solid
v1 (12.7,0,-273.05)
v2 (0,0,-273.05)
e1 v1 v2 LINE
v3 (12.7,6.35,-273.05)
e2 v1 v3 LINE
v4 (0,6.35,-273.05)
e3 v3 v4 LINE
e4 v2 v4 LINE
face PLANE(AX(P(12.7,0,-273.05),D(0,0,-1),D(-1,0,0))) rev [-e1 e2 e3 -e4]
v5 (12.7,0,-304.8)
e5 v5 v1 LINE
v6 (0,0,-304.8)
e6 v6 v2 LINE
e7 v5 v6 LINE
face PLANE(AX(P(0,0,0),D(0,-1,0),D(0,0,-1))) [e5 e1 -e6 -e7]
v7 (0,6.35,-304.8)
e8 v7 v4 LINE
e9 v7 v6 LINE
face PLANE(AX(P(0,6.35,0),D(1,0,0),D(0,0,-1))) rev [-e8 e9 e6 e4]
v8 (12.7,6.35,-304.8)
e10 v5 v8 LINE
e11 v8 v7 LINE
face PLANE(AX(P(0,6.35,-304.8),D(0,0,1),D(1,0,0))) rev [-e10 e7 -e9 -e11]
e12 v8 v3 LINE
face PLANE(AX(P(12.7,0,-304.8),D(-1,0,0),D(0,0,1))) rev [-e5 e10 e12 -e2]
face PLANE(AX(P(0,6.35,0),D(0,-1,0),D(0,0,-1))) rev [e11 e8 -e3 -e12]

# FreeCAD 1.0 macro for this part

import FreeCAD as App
import Part
import Sketcher
Q = App.Units.Quantity

doc = App.newDocument("Part")
body = doc.addObject("PartDesign::Body", "Body")

sketch1 = body.newObject("Sketcher::SketchObject", "Sketch")
sketch1.AttachmentSupport = (doc.getObject("XZ_Plane"), [""])
sketch1.MapMode = "FlatFace"
sketch1.addGeometry([
    Part.LineSegment(App.Vector(0, -305, 0), App.Vector(0, 0, 0)),
    Part.LineSegment(App.Vector(0, 0, 0), App.Vector(305, 0, 0)),
    Part.LineSegment(App.Vector(305, 0, 0), App.Vector(305, -305, 0)),
    Part.LineSegment(App.Vector(305, -305, 0), App.Vector(0, -305, 0)),
], False)
sketch1.addConstraint([
    Sketcher.Constraint("Coincident", 0, 2, 1, 1),
    Sketcher.Constraint("Coincident", 1, 2, 2, 1),
    Sketcher.Constraint("Coincident", 2, 2, 3, 1),
    Sketcher.Constraint("Coincident", 3, 2, 0, 1),
    Sketcher.Constraint("Vertical", 0),
    Sketcher.Constraint("Horizontal", 1),
    Sketcher.Constraint("Vertical", 2),
    Sketcher.Constraint("Horizontal", 3),
    Sketcher.Constraint("Coincident", 0, 2, -1, 1),
    Sketcher.Constraint("Equal", 3, 0),
    Sketcher.Constraint("DistanceX", 1, 1, 1, 2, Q("12 in")),
])
pad1 = body.newObject("PartDesign::Pad", "Pad")
pad1.Profile = sketch1
pad1.Length = Q("0.25 in")
pad1.Reversed = True

sketch2 = body.newObject("Sketcher::SketchObject", "Sketch001")
sketch2.AttachmentSupport = (doc.getObject("XZ_Plane"), [""])
sketch2.MapMode = "FlatFace"
sketch2.AttachmentOffset = App.Placement(App.Vector(0, 0, -0.25 * 25.4), App.Rotation())
sketch2.addGeometry([
    Part.LineSegment(App.Vector(13, -305, 0), App.Vector(13, -273, 0)),
    Part.LineSegment(App.Vector(13, -273, 0), App.Vector(0, -273, 0)),
    Part.LineSegment(App.Vector(0, -273, 0), App.Vector(0, 0, 0)),
    Part.LineSegment(App.Vector(0, 0, 0), App.Vector(305, 0, 0)),
    Part.LineSegment(App.Vector(305, 0, 0), App.Vector(305, -305, 0)),
    Part.LineSegment(App.Vector(305, -305, 0), App.Vector(13, -305, 0)),
], False)
sketch2.addConstraint([
    Sketcher.Constraint("Coincident", 0, 2, 1, 1),
    Sketcher.Constraint("Coincident", 1, 2, 2, 1),
    Sketcher.Constraint("Coincident", 2, 2, 3, 1),
    Sketcher.Constraint("Coincident", 3, 2, 4, 1),
    Sketcher.Constraint("Coincident", 4, 2, 5, 1),
    Sketcher.Constraint("Coincident", 5, 2, 0, 1),
    Sketcher.Constraint("Vertical", 0),
    Sketcher.Constraint("Horizontal", 1),
    Sketcher.Constraint("Vertical", 2),
    Sketcher.Constraint("Horizontal", 3),
    Sketcher.Constraint("Vertical", 4),
    Sketcher.Constraint("Horizontal", 5),
    Sketcher.Constraint("Coincident", 2, 2, -1, 1),
    Sketcher.Constraint("Equal", 3, 4),
    Sketcher.Constraint("DistanceX", 3, 1, 3, 2, Q("12 in")),
    Sketcher.Constraint("DistanceX", 1, 2, 1, 1, Q("0.5 in")),
    Sketcher.Constraint("DistanceY", 0, 1, 0, 2, Q("1.25 in")),
])
pocket1 = body.newObject("PartDesign::Pocket", "Pocket")
pocket1.Profile = sketch2
pocket1.Length = Q("0.25 in")
pocket1.Reversed = True

doc.recompute()
